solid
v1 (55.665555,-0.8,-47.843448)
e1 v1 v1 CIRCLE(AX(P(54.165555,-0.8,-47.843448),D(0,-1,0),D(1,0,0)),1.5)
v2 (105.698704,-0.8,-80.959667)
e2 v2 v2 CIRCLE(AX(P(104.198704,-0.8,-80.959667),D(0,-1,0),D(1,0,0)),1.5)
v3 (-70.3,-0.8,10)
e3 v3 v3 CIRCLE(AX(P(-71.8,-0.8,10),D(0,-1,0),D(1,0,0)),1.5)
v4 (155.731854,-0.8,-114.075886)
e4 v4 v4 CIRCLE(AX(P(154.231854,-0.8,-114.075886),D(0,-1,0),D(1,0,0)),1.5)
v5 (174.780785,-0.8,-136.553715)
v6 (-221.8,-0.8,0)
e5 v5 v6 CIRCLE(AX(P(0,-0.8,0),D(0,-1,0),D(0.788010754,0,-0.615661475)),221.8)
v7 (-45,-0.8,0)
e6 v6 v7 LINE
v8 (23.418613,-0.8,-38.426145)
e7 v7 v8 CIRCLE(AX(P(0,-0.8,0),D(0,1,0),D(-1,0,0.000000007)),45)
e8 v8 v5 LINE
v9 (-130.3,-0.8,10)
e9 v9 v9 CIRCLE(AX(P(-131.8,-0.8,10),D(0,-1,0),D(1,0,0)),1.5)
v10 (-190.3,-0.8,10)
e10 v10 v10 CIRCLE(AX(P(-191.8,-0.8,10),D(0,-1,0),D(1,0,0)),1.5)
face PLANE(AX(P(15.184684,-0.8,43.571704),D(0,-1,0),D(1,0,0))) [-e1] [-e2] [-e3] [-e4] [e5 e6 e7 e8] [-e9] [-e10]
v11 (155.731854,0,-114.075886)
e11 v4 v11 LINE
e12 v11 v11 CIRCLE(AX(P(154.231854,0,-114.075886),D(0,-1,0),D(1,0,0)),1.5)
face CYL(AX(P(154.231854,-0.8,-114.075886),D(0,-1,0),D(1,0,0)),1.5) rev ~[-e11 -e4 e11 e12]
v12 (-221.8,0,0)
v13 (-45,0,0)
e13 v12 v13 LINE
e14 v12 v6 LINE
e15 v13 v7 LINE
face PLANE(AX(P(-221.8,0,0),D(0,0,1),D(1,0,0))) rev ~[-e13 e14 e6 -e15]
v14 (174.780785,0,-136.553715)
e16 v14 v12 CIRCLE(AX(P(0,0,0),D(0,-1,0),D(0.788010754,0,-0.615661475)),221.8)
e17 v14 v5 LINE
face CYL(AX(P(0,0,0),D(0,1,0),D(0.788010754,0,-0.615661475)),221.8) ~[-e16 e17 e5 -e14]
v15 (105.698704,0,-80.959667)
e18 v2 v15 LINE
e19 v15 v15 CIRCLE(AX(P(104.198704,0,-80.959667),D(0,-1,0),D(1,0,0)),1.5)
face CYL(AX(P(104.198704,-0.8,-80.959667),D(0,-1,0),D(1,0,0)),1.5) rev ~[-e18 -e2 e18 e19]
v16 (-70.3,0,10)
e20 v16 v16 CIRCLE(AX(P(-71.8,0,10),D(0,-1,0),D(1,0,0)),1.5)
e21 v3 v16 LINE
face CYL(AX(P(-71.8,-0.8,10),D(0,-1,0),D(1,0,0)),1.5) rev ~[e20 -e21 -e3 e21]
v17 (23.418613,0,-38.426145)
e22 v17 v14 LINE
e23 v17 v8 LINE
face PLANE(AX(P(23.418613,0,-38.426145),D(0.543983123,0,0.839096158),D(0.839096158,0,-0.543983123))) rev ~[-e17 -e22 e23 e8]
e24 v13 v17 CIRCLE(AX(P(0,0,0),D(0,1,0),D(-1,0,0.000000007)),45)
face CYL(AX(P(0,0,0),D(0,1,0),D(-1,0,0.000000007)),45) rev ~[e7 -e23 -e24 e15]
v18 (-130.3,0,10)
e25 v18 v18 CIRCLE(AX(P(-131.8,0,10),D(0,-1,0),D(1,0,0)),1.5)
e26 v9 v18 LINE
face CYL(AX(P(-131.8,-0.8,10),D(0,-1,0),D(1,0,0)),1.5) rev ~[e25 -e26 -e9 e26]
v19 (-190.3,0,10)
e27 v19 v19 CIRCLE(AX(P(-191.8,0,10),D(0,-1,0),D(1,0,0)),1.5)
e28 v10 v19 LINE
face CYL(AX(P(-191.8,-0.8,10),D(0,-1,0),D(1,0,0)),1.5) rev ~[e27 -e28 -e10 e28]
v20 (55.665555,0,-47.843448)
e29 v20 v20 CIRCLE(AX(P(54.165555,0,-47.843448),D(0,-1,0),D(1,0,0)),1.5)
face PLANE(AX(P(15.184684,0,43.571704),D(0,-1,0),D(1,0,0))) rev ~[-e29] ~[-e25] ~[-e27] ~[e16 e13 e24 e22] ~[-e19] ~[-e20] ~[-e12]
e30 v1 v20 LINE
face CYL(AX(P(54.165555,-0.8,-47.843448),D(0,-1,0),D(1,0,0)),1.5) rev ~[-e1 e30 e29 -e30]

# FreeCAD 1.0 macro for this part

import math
import FreeCAD as App
import Part
import Sketcher
from FreeCAD import Vector
Q = App.Units.Quantity

doc = App.newDocument("Part")
params = doc.addObject("Spreadsheet::Sheet", "Params")
for row, (alias, value) in enumerate([
    ("sketch1_radius", "45 mm"),
    ("sketch1_radius2", "221.8 mm"),
    ("pad1_length", "0.8 mm"),
    ("sketch2_diameter", "3 mm"),
    ("pocket1_length", "25 mm"),
], start=1):
    params.set(f"A{row}", alias)
    params.set(f"B{row}", "=" + value)
    params.setAlias(f"B{row}", alias)

body = doc.addObject("PartDesign::Body", "Body")

# Sketch on XZ plane
sketch1 = doc.addObject("Sketcher::SketchObject", "Sketch")
body.addObject(sketch1)
sketch1.AttachmentSupport = (doc.XZ_Plane, [""])
sketch1.MapMode = "FlatFace"
sketch1.addGeometry([
    Part.ArcOfCircle(Part.Circle(Vector(0, 0, 0), Vector(0, 0, 1), 45), math.radians(-59), math.radians(180)),
    Part.LineSegment(Vector(23, -38, 0), Vector(175, -137, 0)),
    Part.ArcOfCircle(Part.Circle(Vector(0, 0, 0), Vector(0, 0, 1), 222), math.radians(-38), math.radians(180)),
    Part.LineSegment(Vector(-222, 0, 0), Vector(-45, 0, 0)),
], False)
sketch1.addConstraint([
    Sketcher.Constraint("Coincident", 0, 1, 1, 1),
    Sketcher.Constraint("Coincident", 1, 2, 2, 1),
    Sketcher.Constraint("Coincident", 2, 2, 3, 1),
    Sketcher.Constraint("Coincident", 3, 2, 0, 2),
    Sketcher.Constraint("Horizontal", 3),
    Sketcher.Constraint("Coincident", 0, 3, -1, 1),
    Sketcher.Constraint("Coincident", 2, 3, -1, 1),
    Sketcher.Constraint("PointOnObject", 2, 2, -1),
    Sketcher.Constraint("Radius", 0, Q("45 mm")),
    Sketcher.Constraint("Radius", 2, Q("221.8 mm")),
    Sketcher.Constraint("Distance", 1, Q("180.387159 mm")),
    Sketcher.Constraint("DistanceX", 0, 1, 1, 2, Q("151.362172 mm")),
])
sketch1.setExpression("Constraints[8]", "Params.sketch1_radius")
sketch1.setExpression("Constraints[9]", "Params.sketch1_radius2")
pad1 = doc.addObject("PartDesign::Pad", "Pad")
body.addObject(pad1)
pad1.Profile = sketch1
pad1.setExpression("Length", "Params.pad1_length")

# Sketch on XZ plane
sketch2 = doc.addObject("Sketcher::SketchObject", "Sketch001")
body.addObject(sketch2)
sketch2.AttachmentSupport = (doc.XZ_Plane, [""])
sketch2.MapMode = "FlatFace"
sketch2.AttachmentOffset = App.Placement(Vector(0, 0, 0.8), App.Rotation())
sketch2.addGeometry([
    Part.Circle(Vector(-191.8, 10, 0), Vector(0, 0, 1), 1.5),  # 0
    Part.Circle(Vector(-131.8, 10, 0), Vector(0, 0, 1), 1.5),  # 1
    Part.Circle(Vector(-71.8, 10, 0), Vector(0, 0, 1), 1.5),  # 2
    Part.Circle(Vector(154.2, -114.1, 0), Vector(0, 0, 1), 1.5),  # 3
    Part.Circle(Vector(104.2, -81, 0), Vector(0, 0, 1), 1.5),  # 4
    Part.Circle(Vector(54.2, -47.8, 0), Vector(0, 0, 1), 1.5),  # 5
], False)
sketch2.addConstraint([
    Sketcher.Constraint("Equal", 0, 1),
    Sketcher.Constraint("Equal", 1, 2),
    Sketcher.Constraint("Equal", 2, 3),
    Sketcher.Constraint("Equal", 3, 4),
    Sketcher.Constraint("Equal", 4, 5),
    Sketcher.Constraint("Horizontal", 0, 3, 1, 3),
    Sketcher.Constraint("Horizontal", 1, 3, 2, 3),
    Sketcher.Constraint("Diameter", 0, Q("3 mm")),
    Sketcher.Constraint("DistanceY", -1, 1, 0, 3, Q("10 mm")),
    Sketcher.Constraint("DistanceX", 0, 3, 1, 3, Q("60 mm")),
    Sketcher.Constraint("DistanceX", 1, 3, 2, 3, Q("60 mm")),
    Sketcher.Constraint("DistanceX", 0, 3, -1, 1, Q("191.8 mm")),
    Sketcher.Constraint("DistanceX", 5, 3, 3, 3, Q("100.066299 mm")),
    Sketcher.Constraint("DistanceY", 5, 3, -1, 1, Q("47.843448 mm")),
    Sketcher.Constraint("DistanceX", 4, 3, 3, 3, Q("50.03315 mm")),
    Sketcher.Constraint("DistanceY", 3, 3, 4, 3, Q("33.116219 mm")),
    Sketcher.Constraint("DistanceY", 4, 3, 5, 3, Q("33.116219 mm")),
    Sketcher.Constraint("DistanceX", -1, 1, 3, 3, Q("154.231854 mm")),
])
sketch2.setExpression("Constraints[7]", "Params.sketch2_diameter")
pocket1 = doc.addObject("PartDesign::Pocket", "Pocket")
body.addObject(pocket1)
pocket1.Profile = sketch2
pocket1.setExpression("Length", "Params.pocket1_length")

doc.recompute()
